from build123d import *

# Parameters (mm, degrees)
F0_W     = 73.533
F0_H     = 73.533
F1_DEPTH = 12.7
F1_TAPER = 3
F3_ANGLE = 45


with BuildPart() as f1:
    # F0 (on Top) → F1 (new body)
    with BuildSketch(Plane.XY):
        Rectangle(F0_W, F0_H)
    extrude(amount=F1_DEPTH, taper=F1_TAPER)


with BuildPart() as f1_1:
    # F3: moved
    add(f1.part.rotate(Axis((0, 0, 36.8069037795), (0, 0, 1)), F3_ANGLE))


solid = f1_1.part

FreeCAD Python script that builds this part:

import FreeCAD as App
import Part
import Sketcher
Q = App.Units.Quantity

doc = App.newDocument("Part")
body = doc.addObject("PartDesign::Body", "Body")

# Sketch on XY plane
sketch1 = body.newObject("Sketcher::SketchObject", "Sketch")
sketch1.AttachmentSupport = (doc.getObject("XY_Plane"), [""])
sketch1.MapMode = "FlatFace"
sketch1.addGeometry(Part.LineSegment(App.Vector(-37, 37, 0), App.Vector(-37, -37, 0)), False)
sketch1.addGeometry(Part.LineSegment(App.Vector(-37, -37, 0), App.Vector(37, -37, 0)), False)
sketch1.addGeometry(Part.LineSegment(App.Vector(37, -37, 0), App.Vector(37, 37, 0)), False)
sketch1.addGeometry(Part.LineSegment(App.Vector(37, 37, 0), App.Vector(-37, 37, 0)), False)
sketch1.addConstraint(Sketcher.Constraint("Coincident", 0, 2, 1, 1))
sketch1.addConstraint(Sketcher.Constraint("Coincident", 1, 2, 2, 1))
sketch1.addConstraint(Sketcher.Constraint("Coincident", 2, 2, 3, 1))
sketch1.addConstraint(Sketcher.Constraint("Coincident", 3, 2, 0, 1))
sketch1.addConstraint(Sketcher.Constraint("Vertical", 0))
sketch1.addConstraint(Sketcher.Constraint("Horizontal", 1))
sketch1.addConstraint(Sketcher.Constraint("Vertical", 2))
sketch1.addConstraint(Sketcher.Constraint("Horizontal", 3))
sketch1.addConstraint(Sketcher.Constraint("Symmetric", 0, 2, 2, 2, -1, 1))
sketch1.addConstraint(Sketcher.Constraint("Equal", 3, 0))
sketch1.addConstraint(Sketcher.Constraint("DistanceX", 1, 1, 1, 2, Q("2.895 in")))
pad1 = body.newObject("PartDesign::Pad", "Pad")
pad1.Profile = sketch1
pad1.Length = Q("0.5 in")
pad1.TaperAngle = -3
body2 = doc.addObject("PartDesign::Body", "Body001")
doc.recompute()

body.Placement = App.Placement(App.Vector(0, 0, 0), App.Rotation(App.Vector(0, 0, 1), 45))
boolean = body2.newObject("PartDesign::Boolean", "Boolean")
boolean.Type = "Fuse"
boolean.addObjects([body])

doc.recompute()
